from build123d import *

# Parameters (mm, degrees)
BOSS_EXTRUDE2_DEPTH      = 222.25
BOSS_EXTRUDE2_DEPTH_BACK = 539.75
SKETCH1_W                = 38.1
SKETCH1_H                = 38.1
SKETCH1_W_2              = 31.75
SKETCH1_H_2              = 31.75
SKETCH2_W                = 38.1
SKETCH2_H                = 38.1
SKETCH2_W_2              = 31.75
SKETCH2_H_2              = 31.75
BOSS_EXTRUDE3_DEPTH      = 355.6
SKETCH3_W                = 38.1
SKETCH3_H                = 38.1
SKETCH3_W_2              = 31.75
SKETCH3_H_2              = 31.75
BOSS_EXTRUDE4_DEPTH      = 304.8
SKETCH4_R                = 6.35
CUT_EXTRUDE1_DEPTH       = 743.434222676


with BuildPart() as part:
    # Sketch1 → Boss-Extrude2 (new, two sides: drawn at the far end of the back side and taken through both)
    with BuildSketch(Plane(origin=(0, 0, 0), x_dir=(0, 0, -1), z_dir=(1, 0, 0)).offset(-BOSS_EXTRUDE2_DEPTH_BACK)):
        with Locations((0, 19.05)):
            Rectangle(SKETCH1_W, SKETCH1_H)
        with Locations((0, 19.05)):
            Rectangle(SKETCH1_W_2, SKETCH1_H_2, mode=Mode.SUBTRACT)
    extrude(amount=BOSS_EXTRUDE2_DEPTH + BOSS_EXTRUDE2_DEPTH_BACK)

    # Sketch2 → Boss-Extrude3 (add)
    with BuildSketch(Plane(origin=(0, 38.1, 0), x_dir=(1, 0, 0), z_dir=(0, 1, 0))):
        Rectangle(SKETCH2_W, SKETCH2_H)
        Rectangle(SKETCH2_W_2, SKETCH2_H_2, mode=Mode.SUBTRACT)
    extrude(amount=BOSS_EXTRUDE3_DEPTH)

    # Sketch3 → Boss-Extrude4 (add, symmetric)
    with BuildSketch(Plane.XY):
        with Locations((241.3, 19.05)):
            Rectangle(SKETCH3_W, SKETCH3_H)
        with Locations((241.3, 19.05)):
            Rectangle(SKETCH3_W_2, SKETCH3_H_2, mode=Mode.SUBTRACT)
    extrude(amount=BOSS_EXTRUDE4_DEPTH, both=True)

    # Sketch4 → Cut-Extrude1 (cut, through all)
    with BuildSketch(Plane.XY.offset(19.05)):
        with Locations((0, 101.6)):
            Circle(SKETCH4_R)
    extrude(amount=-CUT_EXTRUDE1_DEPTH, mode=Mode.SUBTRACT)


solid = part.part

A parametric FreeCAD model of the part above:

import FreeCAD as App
import Part
import Sketcher
from FreeCAD import Vector
Q = App.Units.Quantity


def add_polygon(sketch, points):
    """Adds a closed chain of lines whose ends are joined by coincident constraints."""
    first, n = sketch.GeometryCount, len(points)
    for a, b in zip(points, points[1:] + points[:1]):
        sketch.addGeometry(Part.LineSegment(App.Vector(*a, 0), App.Vector(*b, 0)), False)
    for i in range(n):
        sketch.addConstraint(Sketcher.Constraint("Coincident", first + i, 2, first + (i + 1) % n, 1))

doc = App.newDocument("Part")
body = doc.addObject("PartDesign::Body", "Body")

# Sketch on YZ plane
sketch1 = body.newObject("Sketcher::SketchObject", "Sketch")
sketch1.AttachmentSupport = (doc.getObject("YZ_Plane"), [""])
sketch1.MapMode = "FlatFace"
add_polygon(sketch1, [(38, 19), (0, 19), (0, -19), (38, -19)])  # lines 0-3
add_polygon(sketch1, [(3, -16), (3, 16), (35, 16), (35, -16)])  # lines 4-7
sketch1.addConstraint(Sketcher.Constraint("Horizontal", 0))
sketch1.addConstraint(Sketcher.Constraint("Vertical", 1))
sketch1.addConstraint(Sketcher.Constraint("Horizontal", 2))
sketch1.addConstraint(Sketcher.Constraint("Vertical", 3))
sketch1.addConstraint(Sketcher.Constraint("Vertical", 4))
sketch1.addConstraint(Sketcher.Constraint("Horizontal", 5))
sketch1.addConstraint(Sketcher.Constraint("Vertical", 6))
sketch1.addConstraint(Sketcher.Constraint("Horizontal", 7))
sketch1.addConstraint(Sketcher.Constraint("Symmetric", 0, 2, 1, 2, -1, 1))
sketch1.addConstraint(Sketcher.Constraint("Equal", 2, 1))
sketch1.addConstraint(Sketcher.Constraint("Equal", 7, 4))
sketch1.addConstraint(Sketcher.Constraint("DistanceX", 0, 2, 0, 1, Q("1.5 in")))
sketch1.addConstraint(Sketcher.Constraint("DistanceX", 5, 1, 5, 2, Q("1.25 in")))
sketch1.addConstraint(Sketcher.Constraint("DistanceX", -1, 1, 4, 2, Q("0.125 in")))
sketch1.addConstraint(Sketcher.Constraint("DistanceY", -1, 1, 4, 2, Q("0.625 in")))
pad1 = body.newObject("PartDesign::Pad", "Pad")
pad1.Profile = sketch1
pad1.Type = "TwoLengths"
pad1.Length = Q("8.75 in")
pad1.Length2 = Q("21.25 in")

# Sketch on XZ plane
sketch2 = body.newObject("Sketcher::SketchObject", "Sketch001")
sketch2.AttachmentSupport = (doc.getObject("XZ_Plane"), [""])
sketch2.MapMode = "FlatFace"
sketch2.AttachmentOffset = App.Placement(Vector(0, 0, -1.5 * 25.4), App.Rotation())
add_polygon(sketch2, [(-19, -19), (-19, 19), (19, 19), (19, -19)])  # lines 0-3
add_polygon(sketch2, [(16, 16), (-16, 16), (-16, -16), (16, -16)])  # lines 4-7
sketch2.addConstraint(Sketcher.Constraint("Vertical", 0))
sketch2.addConstraint(Sketcher.Constraint("Horizontal", 1))
sketch2.addConstraint(Sketcher.Constraint("Vertical", 2))
sketch2.addConstraint(Sketcher.Constraint("Horizontal", 3))
sketch2.addConstraint(Sketcher.Constraint("Horizontal", 4))
sketch2.addConstraint(Sketcher.Constraint("Vertical", 5))
sketch2.addConstraint(Sketcher.Constraint("Horizontal", 6))
sketch2.addConstraint(Sketcher.Constraint("Vertical", 7))
sketch2.addConstraint(Sketcher.Constraint("Symmetric", 0, 2, 2, 2, -1, 1))
sketch2.addConstraint(Sketcher.Constraint("Symmetric", 4, 2, 6, 2, -1, 1))
sketch2.addConstraint(Sketcher.Constraint("Equal", 3, 0))
sketch2.addConstraint(Sketcher.Constraint("Equal", 6, 5))
sketch2.addConstraint(Sketcher.Constraint("DistanceX", 1, 1, 1, 2, Q("1.5 in")))
sketch2.addConstraint(Sketcher.Constraint("DistanceX", 4, 2, 4, 1, Q("1.25 in")))
pad2 = body.newObject("PartDesign::Pad", "Pad001")
pad2.Profile = sketch2
pad2.Length = Q("14 in")
pad2.Reversed = True

# Sketch on XY plane
sketch3 = body.newObject("Sketcher::SketchObject", "Sketch002")
sketch3.AttachmentSupport = (doc.getObject("XY_Plane"), [""])
sketch3.MapMode = "FlatFace"
add_polygon(sketch3, [(222, 38), (222, 0), (260, 0), (260, 38)])  # lines 0-3
add_polygon(sketch3, [(257, 3), (225, 3), (225, 35), (257, 35)])  # lines 4-7
sketch3.addConstraint(Sketcher.Constraint("Vertical", 0))
sketch3.addConstraint(Sketcher.Constraint("Horizontal", 1))
sketch3.addConstraint(Sketcher.Constraint("Vertical", 2))
sketch3.addConstraint(Sketcher.Constraint("Horizontal", 3))
sketch3.addConstraint(Sketcher.Constraint("Horizontal", 4))
sketch3.addConstraint(Sketcher.Constraint("Vertical", 5))
sketch3.addConstraint(Sketcher.Constraint("Horizontal", 6))
sketch3.addConstraint(Sketcher.Constraint("Vertical", 7))
sketch3.addConstraint(Sketcher.Constraint("PointOnObject", 0, 2, -1))
sketch3.addConstraint(Sketcher.Constraint("Equal", 3, 0))
sketch3.addConstraint(Sketcher.Constraint("Equal", 6, 5))
sketch3.addConstraint(Sketcher.Constraint("DistanceX", 1, 1, 1, 2, Q("1.5 in")))
sketch3.addConstraint(Sketcher.Constraint("DistanceX", 4, 2, 4, 1, Q("1.25 in")))
sketch3.addConstraint(Sketcher.Constraint("DistanceX", -1, 1, 0, 2, Q("8.75 in")))
sketch3.addConstraint(Sketcher.Constraint("DistanceX", -1, 1, 4, 2, Q("8.875 in")))
sketch3.addConstraint(Sketcher.Constraint("DistanceY", -1, 1, 4, 2, Q("0.125 in")))
pad3 = body.newObject("PartDesign::Pad", "Pad002")
pad3.Profile = sketch3
pad3.Length = Q("24 in")
pad3.Midplane = True

# Sketch on XY plane
sketch4 = body.newObject("Sketcher::SketchObject", "Sketch003")
sketch4.AttachmentSupport = (doc.getObject("XY_Plane"), [""])
sketch4.MapMode = "FlatFace"
sketch4.AttachmentOffset = App.Placement(Vector(0, 0, 0.75 * 25.4), App.Rotation())
sketch4.addGeometry(Part.Circle(Vector(0, 102, 0), Vector(0, 0, 1), 6), False)
sketch4.addConstraint(Sketcher.Constraint("PointOnObject", 0, 3, -2))
sketch4.addConstraint(Sketcher.Constraint("Diameter", 0, Q("0.5 in")))
sketch4.addConstraint(Sketcher.Constraint("DistanceY", -1, 1, 0, 3, Q("4 in")))
pocket1 = body.newObject("PartDesign::Pocket", "Pocket")
pocket1.Profile = sketch4
pocket1.Type = "ThroughAll"

doc.recompute()
